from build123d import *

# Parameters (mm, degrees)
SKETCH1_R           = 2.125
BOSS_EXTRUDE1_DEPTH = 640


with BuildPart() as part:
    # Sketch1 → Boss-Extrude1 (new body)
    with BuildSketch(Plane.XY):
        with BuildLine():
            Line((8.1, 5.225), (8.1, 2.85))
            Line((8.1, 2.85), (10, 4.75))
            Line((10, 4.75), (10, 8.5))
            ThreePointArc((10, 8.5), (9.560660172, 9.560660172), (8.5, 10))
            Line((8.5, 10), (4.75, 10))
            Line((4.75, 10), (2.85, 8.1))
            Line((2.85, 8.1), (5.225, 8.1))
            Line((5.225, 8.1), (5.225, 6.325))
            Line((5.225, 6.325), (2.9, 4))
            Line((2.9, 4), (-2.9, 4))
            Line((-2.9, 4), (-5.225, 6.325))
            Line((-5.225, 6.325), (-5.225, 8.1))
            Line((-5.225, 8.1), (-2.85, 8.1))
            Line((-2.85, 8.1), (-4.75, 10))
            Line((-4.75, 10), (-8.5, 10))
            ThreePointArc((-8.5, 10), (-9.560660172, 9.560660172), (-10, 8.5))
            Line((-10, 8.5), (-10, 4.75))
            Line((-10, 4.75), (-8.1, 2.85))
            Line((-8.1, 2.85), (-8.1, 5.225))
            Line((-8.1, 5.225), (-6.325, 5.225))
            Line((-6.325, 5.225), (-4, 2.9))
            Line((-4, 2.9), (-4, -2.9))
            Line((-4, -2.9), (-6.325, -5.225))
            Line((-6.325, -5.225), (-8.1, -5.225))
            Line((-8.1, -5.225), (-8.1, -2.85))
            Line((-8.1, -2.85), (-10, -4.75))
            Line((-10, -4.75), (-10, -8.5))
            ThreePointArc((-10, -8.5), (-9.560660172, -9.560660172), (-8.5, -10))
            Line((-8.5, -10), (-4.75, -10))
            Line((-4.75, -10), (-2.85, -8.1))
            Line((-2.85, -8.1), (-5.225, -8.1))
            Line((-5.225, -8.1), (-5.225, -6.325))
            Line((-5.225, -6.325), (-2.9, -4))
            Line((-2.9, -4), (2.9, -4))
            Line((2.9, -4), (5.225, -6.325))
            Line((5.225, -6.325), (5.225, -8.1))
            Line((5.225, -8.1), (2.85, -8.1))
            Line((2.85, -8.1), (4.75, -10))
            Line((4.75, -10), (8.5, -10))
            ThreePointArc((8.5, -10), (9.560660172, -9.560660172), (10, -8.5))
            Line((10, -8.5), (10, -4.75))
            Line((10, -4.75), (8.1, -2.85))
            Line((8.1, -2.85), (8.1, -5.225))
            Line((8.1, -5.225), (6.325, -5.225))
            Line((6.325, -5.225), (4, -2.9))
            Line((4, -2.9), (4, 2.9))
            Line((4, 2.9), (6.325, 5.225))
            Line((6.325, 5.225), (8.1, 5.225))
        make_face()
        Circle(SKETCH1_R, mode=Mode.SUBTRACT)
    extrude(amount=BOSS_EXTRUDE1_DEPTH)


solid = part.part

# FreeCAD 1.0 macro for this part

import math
import FreeCAD as App
import Part
import Sketcher

V = App.Vector

doc = App.newDocument("Part")
body = doc.addObject("PartDesign::Body", "Body")

# Sketch on XY plane
sketch1 = body.newObject("Sketcher::SketchObject", "Sketch")
sketch1.AttachmentSupport = (doc.getObject("XY_Plane"), [""])
sketch1.MapMode = "FlatFace"
sketch1.addGeometry(Part.LineSegment(V(8.1, 5.225, 0), V(8.1, 2.85, 0)), False)
sketch1.addGeometry(Part.LineSegment(V(8.1, 2.85, 0), V(10, 4.75, 0)), False)
sketch1.addGeometry(Part.LineSegment(V(10, 4.75, 0), V(10, 8.5, 0)), False)
sketch1.addGeometry(Part.ArcOfCircle(Part.Circle(V(8.5, 8.5, 0), V(0, 0, 1), 1.5), math.radians(0), math.radians(90)), False)
sketch1.addGeometry(Part.LineSegment(V(8.5, 10, 0), V(4.75, 10, 0)), False)
sketch1.addGeometry(Part.LineSegment(V(4.75, 10, 0), V(2.85, 8.1, 0)), False)
sketch1.addGeometry(Part.LineSegment(V(2.85, 8.1, 0), V(5.225, 8.1, 0)), False)
sketch1.addGeometry(Part.LineSegment(V(5.225, 8.1, 0), V(5.225, 6.325, 0)), False)
sketch1.addGeometry(Part.LineSegment(V(5.225, 6.325, 0), V(2.9, 4, 0)), False)
sketch1.addGeometry(Part.LineSegment(V(2.9, 4, 0), V(-2.9, 4, 0)), False)
sketch1.addGeometry(Part.LineSegment(V(-2.9, 4, 0), V(-5.225, 6.325, 0)), False)
sketch1.addGeometry(Part.LineSegment(V(-5.225, 6.325, 0), V(-5.225, 8.1, 0)), False)
sketch1.addGeometry(Part.LineSegment(V(-5.225, 8.1, 0), V(-2.85, 8.1, 0)), False)
sketch1.addGeometry(Part.LineSegment(V(-2.85, 8.1, 0), V(-4.75, 10, 0)), False)
sketch1.addGeometry(Part.LineSegment(V(-4.75, 10, 0), V(-8.5, 10, 0)), False)
sketch1.addGeometry(Part.ArcOfCircle(Part.Circle(V(-8.5, 8.5, 0), V(0, 0, 1), 1.5), math.radians(90), math.radians(180)), False)
sketch1.addGeometry(Part.LineSegment(V(-10, 8.5, 0), V(-10, 4.75, 0)), False)
sketch1.addGeometry(Part.LineSegment(V(-10, 4.75, 0), V(-8.1, 2.85, 0)), False)
sketch1.addGeometry(Part.LineSegment(V(-8.1, 2.85, 0), V(-8.1, 5.225, 0)), False)
sketch1.addGeometry(Part.LineSegment(V(-8.1, 5.225, 0), V(-6.325, 5.225, 0)), False)
sketch1.addGeometry(Part.LineSegment(V(-6.325, 5.225, 0), V(-4, 2.9, 0)), False)
sketch1.addGeometry(Part.LineSegment(V(-4, 2.9, 0), V(-4, -2.9, 0)), False)
sketch1.addGeometry(Part.LineSegment(V(-4, -2.9, 0), V(-6.325, -5.225, 0)), False)
sketch1.addGeometry(Part.LineSegment(V(-6.325, -5.225, 0), V(-8.1, -5.225, 0)), False)
sketch1.addGeometry(Part.LineSegment(V(-8.1, -5.225, 0), V(-8.1, -2.85, 0)), False)
sketch1.addGeometry(Part.LineSegment(V(-8.1, -2.85, 0), V(-10, -4.75, 0)), False)
sketch1.addGeometry(Part.LineSegment(V(-10, -4.75, 0), V(-10, -8.5, 0)), False)
sketch1.addGeometry(Part.ArcOfCircle(Part.Circle(V(-8.5, -8.5, 0), V(0, 0, 1), 1.5), math.radians(180), math.radians(270)), False)
sketch1.addGeometry(Part.LineSegment(V(-8.5, -10, 0), V(-4.75, -10, 0)), False)
sketch1.addGeometry(Part.LineSegment(V(-4.75, -10, 0), V(-2.85, -8.1, 0)), False)
sketch1.addGeometry(Part.LineSegment(V(-2.85, -8.1, 0), V(-5.225, -8.1, 0)), False)
sketch1.addGeometry(Part.LineSegment(V(-5.225, -8.1, 0), V(-5.225, -6.325, 0)), False)
sketch1.addGeometry(Part.LineSegment(V(-5.225, -6.325, 0), V(-2.9, -4, 0)), False)
sketch1.addGeometry(Part.LineSegment(V(-2.9, -4, 0), V(2.9, -4, 0)), False)
sketch1.addGeometry(Part.LineSegment(V(2.9, -4, 0), V(5.225, -6.325, 0)), False)
sketch1.addGeometry(Part.LineSegment(V(5.225, -6.325, 0), V(5.225, -8.1, 0)), False)
sketch1.addGeometry(Part.LineSegment(V(5.225, -8.1, 0), V(2.85, -8.1, 0)), False)
sketch1.addGeometry(Part.LineSegment(V(2.85, -8.1, 0), V(4.75, -10, 0)), False)
sketch1.addGeometry(Part.LineSegment(V(4.75, -10, 0), V(8.5, -10, 0)), False)
sketch1.addGeometry(Part.ArcOfCircle(Part.Circle(V(8.5, -8.5, 0), V(0, 0, 1), 1.5), math.radians(-90), math.radians(0)), False)
sketch1.addGeometry(Part.LineSegment(V(10, -8.5, 0), V(10, -4.75, 0)), False)
sketch1.addGeometry(Part.LineSegment(V(10, -4.75, 0), V(8.1, -2.85, 0)), False)
sketch1.addGeometry(Part.LineSegment(V(8.1, -2.85, 0), V(8.1, -5.225, 0)), False)
sketch1.addGeometry(Part.LineSegment(V(8.1, -5.225, 0), V(6.325, -5.225, 0)), False)
sketch1.addGeometry(Part.LineSegment(V(6.325, -5.225, 0), V(4, -2.9, 0)), False)
sketch1.addGeometry(Part.LineSegment(V(4, -2.9, 0), V(4, 2.9, 0)), False)
sketch1.addGeometry(Part.LineSegment(V(4, 2.9, 0), V(6.325, 5.225, 0)), False)
sketch1.addGeometry(Part.LineSegment(V(6.325, 5.225, 0), V(8.1, 5.225, 0)), False)
sketch1.addGeometry(Part.Circle(V(0, 0, 0), V(0, 0, 1), 2.125), False)
sketch1.addConstraint(Sketcher.Constraint("Coincident", 0, 2, 1, 1))
sketch1.addConstraint(Sketcher.Constraint("Coincident", 1, 2, 2, 1))
sketch1.addConstraint(Sketcher.Constraint("Tangent", 2, 2, 3, 1))
sketch1.addConstraint(Sketcher.Constraint("Tangent", 3, 2, 4, 1))
sketch1.addConstraint(Sketcher.Constraint("Coincident", 4, 2, 5, 1))
sketch1.addConstraint(Sketcher.Constraint("Coincident", 5, 2, 6, 1))
sketch1.addConstraint(Sketcher.Constraint("Coincident", 6, 2, 7, 1))
sketch1.addConstraint(Sketcher.Constraint("Coincident", 7, 2, 8, 1))
sketch1.addConstraint(Sketcher.Constraint("Coincident", 8, 2, 9, 1))
sketch1.addConstraint(Sketcher.Constraint("Coincident", 9, 2, 10, 1))
sketch1.addConstraint(Sketcher.Constraint("Coincident", 10, 2, 11, 1))
sketch1.addConstraint(Sketcher.Constraint("Coincident", 11, 2, 12, 1))
sketch1.addConstraint(Sketcher.Constraint("Coincident", 12, 2, 13, 1))
sketch1.addConstraint(Sketcher.Constraint("Coincident", 13, 2, 14, 1))
sketch1.addConstraint(Sketcher.Constraint("Tangent", 14, 2, 15, 1))
sketch1.addConstraint(Sketcher.Constraint("Tangent", 15, 2, 16, 1))
sketch1.addConstraint(Sketcher.Constraint("Coincident", 16, 2, 17, 1))
sketch1.addConstraint(Sketcher.Constraint("Coincident", 17, 2, 18, 1))
sketch1.addConstraint(Sketcher.Constraint("Coincident", 18, 2, 19, 1))
sketch1.addConstraint(Sketcher.Constraint("Coincident", 19, 2, 20, 1))
sketch1.addConstraint(Sketcher.Constraint("Coincident", 20, 2, 21, 1))
sketch1.addConstraint(Sketcher.Constraint("Coincident", 21, 2, 22, 1))
sketch1.addConstraint(Sketcher.Constraint("Coincident", 22, 2, 23, 1))
sketch1.addConstraint(Sketcher.Constraint("Coincident", 23, 2, 24, 1))
sketch1.addConstraint(Sketcher.Constraint("Coincident", 24, 2, 25, 1))
sketch1.addConstraint(Sketcher.Constraint("Coincident", 25, 2, 26, 1))
sketch1.addConstraint(Sketcher.Constraint("Tangent", 26, 2, 27, 1))
sketch1.addConstraint(Sketcher.Constraint("Tangent", 27, 2, 28, 1))
sketch1.addConstraint(Sketcher.Constraint("Coincident", 28, 2, 29, 1))
sketch1.addConstraint(Sketcher.Constraint("Coincident", 29, 2, 30, 1))
sketch1.addConstraint(Sketcher.Constraint("Coincident", 30, 2, 31, 1))
sketch1.addConstraint(Sketcher.Constraint("Coincident", 31, 2, 32, 1))
sketch1.addConstraint(Sketcher.Constraint("Coincident", 32, 2, 33, 1))
sketch1.addConstraint(Sketcher.Constraint("Coincident", 33, 2, 34, 1))
sketch1.addConstraint(Sketcher.Constraint("Coincident", 34, 2, 35, 1))
sketch1.addConstraint(Sketcher.Constraint("Coincident", 35, 2, 36, 1))
sketch1.addConstraint(Sketcher.Constraint("Coincident", 36, 2, 37, 1))
sketch1.addConstraint(Sketcher.Constraint("Coincident", 37, 2, 38, 1))
sketch1.addConstraint(Sketcher.Constraint("Tangent", 38, 2, 39, 1))
sketch1.addConstraint(Sketcher.Constraint("Tangent", 39, 2, 40, 1))
sketch1.addConstraint(Sketcher.Constraint("Coincident", 40, 2, 41, 1))
sketch1.addConstraint(Sketcher.Constraint("Coincident", 41, 2, 42, 1))
sketch1.addConstraint(Sketcher.Constraint("Coincident", 42, 2, 43, 1))
sketch1.addConstraint(Sketcher.Constraint("Coincident", 43, 2, 44, 1))
sketch1.addConstraint(Sketcher.Constraint("Coincident", 44, 2, 45, 1))
sketch1.addConstraint(Sketcher.Constraint("Coincident", 45, 2, 46, 1))
sketch1.addConstraint(Sketcher.Constraint("Coincident", 46, 2, 47, 1))
sketch1.addConstraint(Sketcher.Constraint("Coincident", 47, 2, 0, 1))
sketch1.addConstraint(Sketcher.Constraint("Vertical", 0))
sketch1.addConstraint(Sketcher.Constraint("Vertical", 2))
sketch1.addConstraint(Sketcher.Constraint("Horizontal", 4))
sketch1.addConstraint(Sketcher.Constraint("Horizontal", 6))
sketch1.addConstraint(Sketcher.Constraint("Vertical", 7))
sketch1.addConstraint(Sketcher.Constraint("Horizontal", 9))
sketch1.addConstraint(Sketcher.Constraint("Vertical", 11))
sketch1.addConstraint(Sketcher.Constraint("Horizontal", 12))
sketch1.addConstraint(Sketcher.Constraint("Horizontal", 14))
sketch1.addConstraint(Sketcher.Constraint("Vertical", 16))
sketch1.addConstraint(Sketcher.Constraint("Vertical", 18))
sketch1.addConstraint(Sketcher.Constraint("Horizontal", 19))
sketch1.addConstraint(Sketcher.Constraint("Vertical", 21))
sketch1.addConstraint(Sketcher.Constraint("Horizontal", 23))
sketch1.addConstraint(Sketcher.Constraint("Vertical", 24))
sketch1.addConstraint(Sketcher.Constraint("Vertical", 26))
sketch1.addConstraint(Sketcher.Constraint("Horizontal", 28))
sketch1.addConstraint(Sketcher.Constraint("Horizontal", 30))
sketch1.addConstraint(Sketcher.Constraint("Vertical", 31))
sketch1.addConstraint(Sketcher.Constraint("Horizontal", 33))
sketch1.addConstraint(Sketcher.Constraint("Vertical", 35))
sketch1.addConstraint(Sketcher.Constraint("Horizontal", 36))
sketch1.addConstraint(Sketcher.Constraint("Horizontal", 38))
sketch1.addConstraint(Sketcher.Constraint("Vertical", 40))
sketch1.addConstraint(Sketcher.Constraint("Vertical", 42))
sketch1.addConstraint(Sketcher.Constraint("Horizontal", 43))
sketch1.addConstraint(Sketcher.Constraint("Vertical", 45))
sketch1.addConstraint(Sketcher.Constraint("Horizontal", 47))
sketch1.addConstraint(Sketcher.Constraint("Coincident", 48, 3, -1, 1))
sketch1.addConstraint(Sketcher.Constraint("Equal", 3, 15))
sketch1.addConstraint(Sketcher.Constraint("Equal", 15, 27))
sketch1.addConstraint(Sketcher.Constraint("Equal", 27, 39))
sketch1.addConstraint(Sketcher.Constraint("Symmetric", 3, 3, 27, 3, -1, 1))
sketch1.addConstraint(Sketcher.Constraint("Symmetric", 15, 3, 39, 3, -1, 1))
sketch1.addConstraint(Sketcher.Constraint("Symmetric", 0, 2, 24, 2, -1, 1))
sketch1.addConstraint(Sketcher.Constraint("Symmetric", 5, 2, 29, 2, -1, 1))
sketch1.addConstraint(Sketcher.Constraint("Symmetric", 7, 2, 31, 2, -1, 1))
sketch1.addConstraint(Sketcher.Constraint("Symmetric", 8, 2, 32, 2, -1, 1))
sketch1.addConstraint(Sketcher.Constraint("Symmetric", 10, 2, 34, 2, -1, 1))
sketch1.addConstraint(Sketcher.Constraint("Symmetric", 12, 2, 36, 2, -1, 1))
sketch1.addConstraint(Sketcher.Constraint("Symmetric", 17, 2, 41, 2, -1, 1))
sketch1.addConstraint(Sketcher.Constraint("Symmetric", 19, 2, 43, 2, -1, 1))
sketch1.addConstraint(Sketcher.Constraint("Symmetric", 20, 2, 44, 2, -1, 1))
sketch1.addConstraint(Sketcher.Constraint("Symmetric", 22, 2, 46, 2, -1, 1))
sketch1.addConstraint(Sketcher.Constraint("Symmetric", 3, 3, 15, 3, -2))
sketch1.addConstraint(Sketcher.Constraint("Symmetric", 7, 2, 10, 2, -2))
sketch1.addConstraint(Sketcher.Constraint("Symmetric", 5, 2, 12, 2, -2))
sketch1.addConstraint(Sketcher.Constraint("Symmetric", 0, 2, 17, 2, -2))
sketch1.addConstraint(Sketcher.Constraint("Symmetric", 22, 2, 43, 2, -2))
sketch1.addConstraint(Sketcher.Constraint("Parallel", 1, 5))
sketch1.addConstraint(Sketcher.Constraint("Parallel", 5, 8))
sketch1.addConstraint(Sketcher.Constraint("Perpendicular", 8, 10))
sketch1.addConstraint(Sketcher.Constraint("Parallel", 10, 13))
sketch1.addConstraint(Sketcher.Constraint("Parallel", 13, 17))
sketch1.addConstraint(Sketcher.Constraint("Parallel", 17, 20))
sketch1.addConstraint(Sketcher.Constraint("Perpendicular", 20, 22))
sketch1.addConstraint(Sketcher.Constraint("Parallel", 22, 25))
sketch1.addConstraint(Sketcher.Constraint("Parallel", 25, 29))
sketch1.addConstraint(Sketcher.Constraint("Perpendicular", 32, 34))
sketch1.addConstraint(Sketcher.Constraint("Parallel", 34, 37))
sketch1.addConstraint(Sketcher.Constraint("Parallel", 37, 41))
sketch1.addConstraint(Sketcher.Constraint("Perpendicular", 44, 46))
sketch1.addConstraint(Sketcher.Constraint("Horizontal", 1, 2, 16, 2))
sketch1.addConstraint(Sketcher.Constraint("Equal", 36, 0))
sketch1.addConstraint(Sketcher.Constraint("Equal", 38, 2))
sketch1.addConstraint(Sketcher.Constraint("Equal", 47, 7))
sketch1.addConstraint(Sketcher.Constraint("Equal", 33, 21))
sketch1.addConstraint(Sketcher.Constraint("Equal", 1, 5))
sketch1.addConstraint(Sketcher.Constraint("Equal", 10, 20))
sketch1.addConstraint(Sketcher.Constraint("Radius", 3, 1.5))
sketch1.addConstraint(Sketcher.Constraint("Diameter", 48, 4.25))
sketch1.addConstraint(Sketcher.Constraint("DistanceX", 9, 2, 9, 1, 5.8))
sketch1.addConstraint(Sketcher.Constraint("DistanceX", -1, 1, 1, 2, 10.0))
sketch1.addConstraint(Sketcher.Constraint("DistanceY", -1, 1, 8, 2, 4.0))
sketch1.addConstraint(Sketcher.Constraint("DistanceX", 4, 2, 4, 1, 3.75))
sketch1.addConstraint(Sketcher.Constraint("DistanceX", -1, 1, 0, 2, 8.1))
sketch1.addConstraint(Sketcher.Constraint("DistanceX", 6, 1, 6, 2, 2.375))
pad1 = body.newObject("PartDesign::Pad", "Pad")
pad1.Profile = sketch1
pad1.Length = 640

doc.recompute()
